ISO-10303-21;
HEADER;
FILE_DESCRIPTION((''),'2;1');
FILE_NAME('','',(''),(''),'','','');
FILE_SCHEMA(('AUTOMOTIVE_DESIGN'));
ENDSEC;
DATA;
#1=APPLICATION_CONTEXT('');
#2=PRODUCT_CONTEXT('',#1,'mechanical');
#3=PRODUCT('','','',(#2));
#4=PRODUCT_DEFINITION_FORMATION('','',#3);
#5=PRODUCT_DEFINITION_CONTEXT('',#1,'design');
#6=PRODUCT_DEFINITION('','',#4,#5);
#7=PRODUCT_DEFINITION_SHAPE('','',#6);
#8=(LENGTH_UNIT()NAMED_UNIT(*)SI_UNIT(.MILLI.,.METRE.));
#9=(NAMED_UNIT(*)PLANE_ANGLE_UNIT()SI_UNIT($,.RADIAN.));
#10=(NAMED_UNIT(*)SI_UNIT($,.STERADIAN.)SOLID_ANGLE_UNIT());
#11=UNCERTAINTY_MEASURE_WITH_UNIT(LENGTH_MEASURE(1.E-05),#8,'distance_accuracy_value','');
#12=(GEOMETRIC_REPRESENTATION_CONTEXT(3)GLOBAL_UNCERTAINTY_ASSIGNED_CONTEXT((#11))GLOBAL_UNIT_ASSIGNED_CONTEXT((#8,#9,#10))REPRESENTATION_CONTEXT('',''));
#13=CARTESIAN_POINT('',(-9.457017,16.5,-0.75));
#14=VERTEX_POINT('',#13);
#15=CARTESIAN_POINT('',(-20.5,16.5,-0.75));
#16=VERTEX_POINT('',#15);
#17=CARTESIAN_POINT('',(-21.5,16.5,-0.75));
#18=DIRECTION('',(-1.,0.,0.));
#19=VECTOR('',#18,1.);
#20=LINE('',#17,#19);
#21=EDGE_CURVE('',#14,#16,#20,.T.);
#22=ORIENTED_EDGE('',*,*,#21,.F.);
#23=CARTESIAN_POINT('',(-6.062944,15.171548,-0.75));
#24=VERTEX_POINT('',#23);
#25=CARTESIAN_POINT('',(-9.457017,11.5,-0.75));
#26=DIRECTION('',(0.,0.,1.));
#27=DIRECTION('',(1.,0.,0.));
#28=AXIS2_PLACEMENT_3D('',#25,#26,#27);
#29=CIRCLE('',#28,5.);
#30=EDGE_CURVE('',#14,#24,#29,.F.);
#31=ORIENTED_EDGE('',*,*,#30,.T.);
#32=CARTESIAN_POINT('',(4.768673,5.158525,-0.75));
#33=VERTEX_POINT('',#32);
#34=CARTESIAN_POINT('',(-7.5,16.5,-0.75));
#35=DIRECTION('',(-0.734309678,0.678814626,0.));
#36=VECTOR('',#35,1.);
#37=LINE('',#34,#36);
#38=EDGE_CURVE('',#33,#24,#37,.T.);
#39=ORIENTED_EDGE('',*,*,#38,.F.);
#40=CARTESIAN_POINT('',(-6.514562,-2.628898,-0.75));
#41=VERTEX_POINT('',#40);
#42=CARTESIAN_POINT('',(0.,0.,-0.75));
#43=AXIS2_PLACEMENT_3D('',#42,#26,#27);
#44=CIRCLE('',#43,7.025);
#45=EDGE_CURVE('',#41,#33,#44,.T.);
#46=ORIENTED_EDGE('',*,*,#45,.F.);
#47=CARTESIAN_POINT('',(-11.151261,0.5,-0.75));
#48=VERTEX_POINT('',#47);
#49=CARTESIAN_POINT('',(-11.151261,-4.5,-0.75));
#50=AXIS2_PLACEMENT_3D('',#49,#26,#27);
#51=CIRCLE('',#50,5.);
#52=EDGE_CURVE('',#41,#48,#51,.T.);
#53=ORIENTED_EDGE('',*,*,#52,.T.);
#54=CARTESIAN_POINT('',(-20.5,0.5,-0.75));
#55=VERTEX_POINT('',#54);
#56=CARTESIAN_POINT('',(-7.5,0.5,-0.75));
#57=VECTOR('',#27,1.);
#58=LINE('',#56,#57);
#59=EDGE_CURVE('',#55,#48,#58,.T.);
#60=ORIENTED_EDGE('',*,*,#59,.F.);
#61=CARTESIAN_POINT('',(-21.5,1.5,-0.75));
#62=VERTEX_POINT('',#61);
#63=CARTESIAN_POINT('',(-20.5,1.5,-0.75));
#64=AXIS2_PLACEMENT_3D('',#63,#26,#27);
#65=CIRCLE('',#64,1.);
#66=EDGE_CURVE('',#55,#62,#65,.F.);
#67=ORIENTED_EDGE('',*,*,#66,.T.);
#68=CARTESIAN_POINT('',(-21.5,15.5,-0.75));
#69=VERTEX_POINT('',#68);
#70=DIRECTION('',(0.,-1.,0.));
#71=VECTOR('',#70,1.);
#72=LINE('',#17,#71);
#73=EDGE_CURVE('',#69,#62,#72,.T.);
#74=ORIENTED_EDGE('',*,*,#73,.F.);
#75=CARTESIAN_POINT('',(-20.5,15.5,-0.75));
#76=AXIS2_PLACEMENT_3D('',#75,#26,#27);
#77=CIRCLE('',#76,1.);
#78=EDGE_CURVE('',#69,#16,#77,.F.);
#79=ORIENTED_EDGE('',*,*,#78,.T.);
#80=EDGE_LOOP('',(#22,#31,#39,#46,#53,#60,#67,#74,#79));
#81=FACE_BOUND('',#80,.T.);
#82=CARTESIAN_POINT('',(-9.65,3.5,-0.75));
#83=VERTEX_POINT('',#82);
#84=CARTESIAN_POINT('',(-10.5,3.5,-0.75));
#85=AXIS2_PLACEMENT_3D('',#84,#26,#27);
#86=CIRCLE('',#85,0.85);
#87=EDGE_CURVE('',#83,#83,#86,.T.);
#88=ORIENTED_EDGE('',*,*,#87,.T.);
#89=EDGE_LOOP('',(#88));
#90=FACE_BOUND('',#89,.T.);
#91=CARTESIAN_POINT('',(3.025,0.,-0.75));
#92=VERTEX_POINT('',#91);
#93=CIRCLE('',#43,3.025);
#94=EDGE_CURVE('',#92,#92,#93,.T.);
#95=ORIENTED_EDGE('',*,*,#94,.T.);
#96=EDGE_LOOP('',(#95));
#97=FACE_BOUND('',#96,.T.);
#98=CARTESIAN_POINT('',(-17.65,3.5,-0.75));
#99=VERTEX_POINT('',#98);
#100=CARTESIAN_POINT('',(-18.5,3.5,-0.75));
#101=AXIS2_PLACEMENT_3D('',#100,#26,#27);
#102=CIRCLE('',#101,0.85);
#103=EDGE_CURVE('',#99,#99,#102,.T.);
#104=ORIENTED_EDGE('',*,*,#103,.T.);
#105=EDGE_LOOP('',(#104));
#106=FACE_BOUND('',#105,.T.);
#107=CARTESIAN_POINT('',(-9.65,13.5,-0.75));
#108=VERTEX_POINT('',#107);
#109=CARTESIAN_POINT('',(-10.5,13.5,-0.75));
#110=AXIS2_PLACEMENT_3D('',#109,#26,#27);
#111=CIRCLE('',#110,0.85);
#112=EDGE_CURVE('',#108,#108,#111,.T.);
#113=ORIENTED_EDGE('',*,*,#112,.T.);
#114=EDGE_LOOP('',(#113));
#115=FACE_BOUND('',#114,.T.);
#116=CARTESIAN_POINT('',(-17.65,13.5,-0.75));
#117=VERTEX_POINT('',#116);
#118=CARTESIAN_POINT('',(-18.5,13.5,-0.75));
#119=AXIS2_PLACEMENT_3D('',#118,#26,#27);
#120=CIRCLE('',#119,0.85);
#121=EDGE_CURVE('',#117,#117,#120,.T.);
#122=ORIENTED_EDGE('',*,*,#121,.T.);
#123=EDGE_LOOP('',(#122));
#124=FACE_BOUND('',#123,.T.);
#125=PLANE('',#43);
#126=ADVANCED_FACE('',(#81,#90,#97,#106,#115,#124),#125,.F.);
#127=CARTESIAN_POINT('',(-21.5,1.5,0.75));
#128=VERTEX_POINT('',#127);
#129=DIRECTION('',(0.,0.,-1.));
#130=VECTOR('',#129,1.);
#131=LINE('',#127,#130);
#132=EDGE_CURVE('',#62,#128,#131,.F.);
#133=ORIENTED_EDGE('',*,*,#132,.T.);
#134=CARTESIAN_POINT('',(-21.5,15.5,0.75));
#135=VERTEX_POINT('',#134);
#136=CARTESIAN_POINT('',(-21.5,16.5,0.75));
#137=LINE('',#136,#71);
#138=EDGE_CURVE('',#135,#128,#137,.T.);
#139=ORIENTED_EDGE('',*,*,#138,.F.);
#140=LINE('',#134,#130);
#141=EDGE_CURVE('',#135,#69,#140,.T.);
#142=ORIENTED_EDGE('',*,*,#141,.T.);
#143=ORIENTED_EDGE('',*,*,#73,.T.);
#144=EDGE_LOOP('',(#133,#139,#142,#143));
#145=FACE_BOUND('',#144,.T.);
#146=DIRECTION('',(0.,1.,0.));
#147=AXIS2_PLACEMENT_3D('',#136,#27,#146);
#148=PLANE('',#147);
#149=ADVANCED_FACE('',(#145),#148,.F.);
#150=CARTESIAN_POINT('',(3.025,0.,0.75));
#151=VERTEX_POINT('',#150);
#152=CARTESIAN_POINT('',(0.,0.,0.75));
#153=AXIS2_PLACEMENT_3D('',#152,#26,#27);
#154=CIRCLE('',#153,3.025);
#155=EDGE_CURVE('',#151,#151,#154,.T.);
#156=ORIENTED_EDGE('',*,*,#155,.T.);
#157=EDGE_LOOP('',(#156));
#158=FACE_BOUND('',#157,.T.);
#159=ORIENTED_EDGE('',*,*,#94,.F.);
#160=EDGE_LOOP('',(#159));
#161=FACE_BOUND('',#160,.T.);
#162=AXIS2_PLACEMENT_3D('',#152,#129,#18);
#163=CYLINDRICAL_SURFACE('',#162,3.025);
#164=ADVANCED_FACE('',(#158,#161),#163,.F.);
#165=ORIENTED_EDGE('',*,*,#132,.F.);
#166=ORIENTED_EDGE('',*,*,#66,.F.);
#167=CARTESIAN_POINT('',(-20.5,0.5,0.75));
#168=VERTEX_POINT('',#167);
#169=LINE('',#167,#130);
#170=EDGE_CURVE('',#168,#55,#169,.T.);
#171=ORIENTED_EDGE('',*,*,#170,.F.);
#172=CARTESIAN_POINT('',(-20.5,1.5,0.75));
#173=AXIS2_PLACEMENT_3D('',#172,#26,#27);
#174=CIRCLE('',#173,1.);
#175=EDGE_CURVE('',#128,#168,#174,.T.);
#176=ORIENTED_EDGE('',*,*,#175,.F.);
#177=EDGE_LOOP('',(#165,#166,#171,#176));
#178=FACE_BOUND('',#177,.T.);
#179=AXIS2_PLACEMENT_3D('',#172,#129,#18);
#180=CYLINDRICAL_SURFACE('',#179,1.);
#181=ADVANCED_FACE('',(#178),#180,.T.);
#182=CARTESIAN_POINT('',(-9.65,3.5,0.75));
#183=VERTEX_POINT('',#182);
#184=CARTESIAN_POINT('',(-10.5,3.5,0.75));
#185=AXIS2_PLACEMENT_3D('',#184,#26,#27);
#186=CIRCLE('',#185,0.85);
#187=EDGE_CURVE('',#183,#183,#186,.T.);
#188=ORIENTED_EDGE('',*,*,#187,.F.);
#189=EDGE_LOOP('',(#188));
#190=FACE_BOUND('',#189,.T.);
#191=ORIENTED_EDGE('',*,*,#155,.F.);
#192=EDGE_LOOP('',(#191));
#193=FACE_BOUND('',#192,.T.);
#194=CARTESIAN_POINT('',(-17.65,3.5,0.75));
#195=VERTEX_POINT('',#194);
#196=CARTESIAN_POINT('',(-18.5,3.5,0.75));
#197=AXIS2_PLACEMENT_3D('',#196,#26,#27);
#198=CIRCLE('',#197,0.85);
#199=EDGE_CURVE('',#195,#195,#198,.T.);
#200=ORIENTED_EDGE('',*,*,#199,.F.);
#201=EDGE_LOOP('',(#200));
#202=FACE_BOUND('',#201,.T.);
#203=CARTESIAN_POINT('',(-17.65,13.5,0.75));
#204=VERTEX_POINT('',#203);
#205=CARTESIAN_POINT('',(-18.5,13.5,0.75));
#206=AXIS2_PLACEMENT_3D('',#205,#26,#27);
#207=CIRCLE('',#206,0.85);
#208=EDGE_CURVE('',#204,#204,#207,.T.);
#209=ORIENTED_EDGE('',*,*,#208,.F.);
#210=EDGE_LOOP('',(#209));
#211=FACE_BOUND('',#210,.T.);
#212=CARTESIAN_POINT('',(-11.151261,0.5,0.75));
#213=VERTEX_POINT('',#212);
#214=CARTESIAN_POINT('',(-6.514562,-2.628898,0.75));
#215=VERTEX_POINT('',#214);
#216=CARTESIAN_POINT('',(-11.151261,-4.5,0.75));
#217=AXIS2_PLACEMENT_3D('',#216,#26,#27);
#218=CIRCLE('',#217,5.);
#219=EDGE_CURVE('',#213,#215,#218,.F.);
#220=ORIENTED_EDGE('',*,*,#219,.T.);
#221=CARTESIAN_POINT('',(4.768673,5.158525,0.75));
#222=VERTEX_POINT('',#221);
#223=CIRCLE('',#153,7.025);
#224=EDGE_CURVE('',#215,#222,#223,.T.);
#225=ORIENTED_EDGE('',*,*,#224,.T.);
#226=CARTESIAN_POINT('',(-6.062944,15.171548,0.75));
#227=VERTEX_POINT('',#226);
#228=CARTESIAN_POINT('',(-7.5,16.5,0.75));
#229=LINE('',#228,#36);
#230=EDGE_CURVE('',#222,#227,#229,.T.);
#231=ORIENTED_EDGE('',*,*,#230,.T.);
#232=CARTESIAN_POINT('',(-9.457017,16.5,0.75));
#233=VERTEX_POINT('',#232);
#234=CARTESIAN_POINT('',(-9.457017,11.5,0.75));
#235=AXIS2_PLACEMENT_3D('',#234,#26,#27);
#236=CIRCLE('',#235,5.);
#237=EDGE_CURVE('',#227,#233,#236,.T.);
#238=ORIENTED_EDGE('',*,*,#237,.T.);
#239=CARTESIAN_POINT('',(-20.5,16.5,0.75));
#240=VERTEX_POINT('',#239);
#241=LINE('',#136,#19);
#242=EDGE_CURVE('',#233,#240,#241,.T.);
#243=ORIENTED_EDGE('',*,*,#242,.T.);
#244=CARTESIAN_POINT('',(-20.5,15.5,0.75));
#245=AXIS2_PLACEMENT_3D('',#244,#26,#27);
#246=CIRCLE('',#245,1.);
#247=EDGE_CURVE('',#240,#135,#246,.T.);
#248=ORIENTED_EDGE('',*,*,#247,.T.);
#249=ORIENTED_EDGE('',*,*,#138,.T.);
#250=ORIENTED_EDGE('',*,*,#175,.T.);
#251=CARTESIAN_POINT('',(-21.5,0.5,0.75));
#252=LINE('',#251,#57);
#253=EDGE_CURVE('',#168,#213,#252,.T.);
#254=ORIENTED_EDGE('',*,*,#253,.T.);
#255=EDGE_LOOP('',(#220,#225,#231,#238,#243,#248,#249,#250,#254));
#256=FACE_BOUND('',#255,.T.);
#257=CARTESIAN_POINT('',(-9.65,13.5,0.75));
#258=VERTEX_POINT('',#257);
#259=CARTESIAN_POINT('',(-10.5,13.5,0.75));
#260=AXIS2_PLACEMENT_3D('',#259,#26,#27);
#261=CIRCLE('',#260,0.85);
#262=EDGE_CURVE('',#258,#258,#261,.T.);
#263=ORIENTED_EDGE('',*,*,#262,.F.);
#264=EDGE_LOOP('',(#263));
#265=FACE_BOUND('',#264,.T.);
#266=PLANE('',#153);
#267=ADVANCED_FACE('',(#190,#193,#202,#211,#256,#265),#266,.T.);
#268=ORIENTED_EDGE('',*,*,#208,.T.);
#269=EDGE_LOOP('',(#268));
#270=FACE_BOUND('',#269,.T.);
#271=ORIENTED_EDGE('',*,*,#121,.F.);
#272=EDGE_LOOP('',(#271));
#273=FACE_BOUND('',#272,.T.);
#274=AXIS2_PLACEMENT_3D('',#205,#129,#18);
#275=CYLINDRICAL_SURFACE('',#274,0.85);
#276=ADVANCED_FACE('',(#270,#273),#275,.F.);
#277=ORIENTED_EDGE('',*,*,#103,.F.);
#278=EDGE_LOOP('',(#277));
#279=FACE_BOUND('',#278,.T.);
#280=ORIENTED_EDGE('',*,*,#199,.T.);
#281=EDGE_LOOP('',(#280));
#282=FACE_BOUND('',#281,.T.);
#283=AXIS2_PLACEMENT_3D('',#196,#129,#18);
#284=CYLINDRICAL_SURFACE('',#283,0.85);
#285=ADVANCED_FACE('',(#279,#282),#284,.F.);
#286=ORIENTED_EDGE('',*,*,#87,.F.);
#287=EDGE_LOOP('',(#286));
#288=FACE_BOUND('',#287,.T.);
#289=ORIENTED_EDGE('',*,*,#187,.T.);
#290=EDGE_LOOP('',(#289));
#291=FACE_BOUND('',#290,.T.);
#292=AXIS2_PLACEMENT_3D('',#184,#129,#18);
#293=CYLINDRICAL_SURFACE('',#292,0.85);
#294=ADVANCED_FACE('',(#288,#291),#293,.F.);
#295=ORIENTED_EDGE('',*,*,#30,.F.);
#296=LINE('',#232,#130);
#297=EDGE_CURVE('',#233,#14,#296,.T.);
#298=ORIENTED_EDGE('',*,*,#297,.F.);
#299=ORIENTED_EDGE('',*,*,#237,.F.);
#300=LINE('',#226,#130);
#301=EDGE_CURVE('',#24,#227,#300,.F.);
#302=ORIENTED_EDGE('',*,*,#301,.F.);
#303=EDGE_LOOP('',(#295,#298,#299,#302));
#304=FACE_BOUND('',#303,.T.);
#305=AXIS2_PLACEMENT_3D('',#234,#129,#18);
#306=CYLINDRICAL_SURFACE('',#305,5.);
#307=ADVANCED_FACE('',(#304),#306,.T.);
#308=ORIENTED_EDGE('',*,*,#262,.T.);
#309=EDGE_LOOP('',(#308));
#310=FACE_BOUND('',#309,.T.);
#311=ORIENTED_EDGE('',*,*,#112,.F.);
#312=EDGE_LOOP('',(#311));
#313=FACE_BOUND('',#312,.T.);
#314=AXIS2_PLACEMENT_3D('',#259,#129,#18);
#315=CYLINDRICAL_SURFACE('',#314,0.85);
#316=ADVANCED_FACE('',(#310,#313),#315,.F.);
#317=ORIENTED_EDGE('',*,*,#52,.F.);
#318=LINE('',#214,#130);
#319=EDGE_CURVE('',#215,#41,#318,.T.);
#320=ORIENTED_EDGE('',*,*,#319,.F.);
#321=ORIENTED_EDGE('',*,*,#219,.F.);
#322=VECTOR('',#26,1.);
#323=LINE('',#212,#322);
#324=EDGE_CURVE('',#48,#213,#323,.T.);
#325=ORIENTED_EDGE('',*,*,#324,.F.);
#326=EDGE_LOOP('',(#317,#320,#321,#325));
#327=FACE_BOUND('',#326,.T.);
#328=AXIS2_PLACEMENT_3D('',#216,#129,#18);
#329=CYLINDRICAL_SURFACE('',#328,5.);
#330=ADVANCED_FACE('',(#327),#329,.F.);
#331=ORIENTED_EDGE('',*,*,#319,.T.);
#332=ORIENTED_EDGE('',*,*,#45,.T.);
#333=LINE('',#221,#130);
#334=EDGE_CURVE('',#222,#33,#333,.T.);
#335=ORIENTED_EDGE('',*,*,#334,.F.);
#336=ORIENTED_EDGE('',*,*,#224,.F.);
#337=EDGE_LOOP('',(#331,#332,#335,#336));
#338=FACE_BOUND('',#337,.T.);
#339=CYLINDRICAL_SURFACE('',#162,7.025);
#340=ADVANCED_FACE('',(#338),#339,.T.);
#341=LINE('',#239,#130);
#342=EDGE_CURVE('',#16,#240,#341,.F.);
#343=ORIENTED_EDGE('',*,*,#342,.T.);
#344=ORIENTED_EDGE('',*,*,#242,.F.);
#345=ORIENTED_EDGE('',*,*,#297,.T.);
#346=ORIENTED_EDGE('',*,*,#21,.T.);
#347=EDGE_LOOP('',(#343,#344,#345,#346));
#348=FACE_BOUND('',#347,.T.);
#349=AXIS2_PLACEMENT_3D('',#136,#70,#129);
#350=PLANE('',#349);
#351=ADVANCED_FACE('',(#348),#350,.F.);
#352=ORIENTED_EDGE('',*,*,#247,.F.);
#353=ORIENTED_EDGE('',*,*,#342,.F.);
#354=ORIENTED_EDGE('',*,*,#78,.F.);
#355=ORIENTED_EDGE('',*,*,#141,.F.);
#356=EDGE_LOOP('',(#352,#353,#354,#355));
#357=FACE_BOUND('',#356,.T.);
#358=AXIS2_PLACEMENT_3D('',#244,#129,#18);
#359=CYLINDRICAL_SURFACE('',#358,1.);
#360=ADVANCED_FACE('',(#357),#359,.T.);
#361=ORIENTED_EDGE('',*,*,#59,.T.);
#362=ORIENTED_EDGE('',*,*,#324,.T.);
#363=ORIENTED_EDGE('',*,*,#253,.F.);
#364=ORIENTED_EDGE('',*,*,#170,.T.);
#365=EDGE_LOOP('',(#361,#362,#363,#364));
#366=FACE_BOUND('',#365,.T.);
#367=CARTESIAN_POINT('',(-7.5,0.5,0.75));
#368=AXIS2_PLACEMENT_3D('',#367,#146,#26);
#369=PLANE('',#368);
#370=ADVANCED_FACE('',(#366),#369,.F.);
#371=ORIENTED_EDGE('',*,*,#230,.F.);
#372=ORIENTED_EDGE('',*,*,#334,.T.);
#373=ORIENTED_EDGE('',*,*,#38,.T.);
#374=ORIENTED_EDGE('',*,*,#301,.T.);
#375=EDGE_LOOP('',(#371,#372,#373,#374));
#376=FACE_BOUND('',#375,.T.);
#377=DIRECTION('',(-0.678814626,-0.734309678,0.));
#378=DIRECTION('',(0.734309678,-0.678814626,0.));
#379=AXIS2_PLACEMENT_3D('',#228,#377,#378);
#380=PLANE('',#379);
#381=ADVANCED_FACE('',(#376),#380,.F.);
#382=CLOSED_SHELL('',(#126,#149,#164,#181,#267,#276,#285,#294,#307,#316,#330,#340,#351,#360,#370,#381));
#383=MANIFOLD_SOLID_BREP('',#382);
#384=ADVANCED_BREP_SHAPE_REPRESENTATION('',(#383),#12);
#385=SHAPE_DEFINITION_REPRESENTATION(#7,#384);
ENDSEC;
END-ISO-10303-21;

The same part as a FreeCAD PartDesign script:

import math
import FreeCAD as App
import Part
import Sketcher

V = App.Vector
Q = App.Units.Quantity


def edges_at(feature, points):
    """Names of the edges that pass closest to the given points."""
    edges = feature.Shape.Edges
    near = lambda p: min(range(len(edges)), key=lambda i: edges[i].distToShape(Part.Vertex(*p))[0])
    return sorted({f"Edge{near(p) + 1}" for p in points})

doc = App.newDocument("Part")
body = doc.addObject("PartDesign::Body", "Body")

# Sketch on XY plane
sketch1 = body.newObject("Sketcher::SketchObject", "Sketch")
sketch1.AttachmentSupport = (doc.getObject("XY_Plane"), [""])
sketch1.MapMode = "FlatFace"
sketch1.addGeometry([
    Part.LineSegment(V(4.8, 5.2, 0), V(-7.5, 16.5, 0)),  # 0
    Part.LineSegment(V(-7.5, 16.5, 0), V(-21.5, 16.5, 0)),  # 1
    Part.LineSegment(V(-21.5, 16.5, 0), V(-21.5, 0.5, 0)),  # 2
    Part.LineSegment(V(-21.5, 0.5, 0), V(-7, 0.5, 0)),  # 3
    Part.ArcOfCircle(Part.Circle(V(0, 0, 0), V(0, 0, 1), 7), math.radians(176), math.radians(407)),  # 4
    Part.Circle(V(0, 0, 0), V(0, 0, 1), 3),  # 5
    Part.Circle(V(-10.5, 3.5, 0), V(0, 0, 1), 0.8),  # 6
    Part.Circle(V(-18.5, 3.5, 0), V(0, 0, 1), 0.8),  # 7
    Part.Circle(V(-10.5, 13.5, 0), V(0, 0, 1), 0.8),  # 8
    Part.Circle(V(-18.5, 13.5, 0), V(0, 0, 1), 0.8),  # 9
], False)
sketch1.addConstraint([
    Sketcher.Constraint("Coincident", 0, 2, 1, 1),
    Sketcher.Constraint("Coincident", 1, 2, 2, 1),
    Sketcher.Constraint("Coincident", 2, 2, 3, 1),
    Sketcher.Constraint("Coincident", 3, 2, 4, 1),
    Sketcher.Constraint("Tangent", 4, 2, 0, 1),
    Sketcher.Constraint("Horizontal", 1),
    Sketcher.Constraint("Vertical", 2),
    Sketcher.Constraint("Horizontal", 3),
    Sketcher.Constraint("Coincident", 4, 3, -1, 1),
    Sketcher.Constraint("Coincident", 5, 3, -1, 1),
    Sketcher.Constraint("Equal", 6, 7),
    Sketcher.Constraint("Equal", 7, 8),
    Sketcher.Constraint("Equal", 8, 9),
    Sketcher.Constraint("Horizontal", 6, 3, 7, 3),
    Sketcher.Constraint("Horizontal", 8, 3, 9, 3),
    Sketcher.Constraint("Vertical", 6, 3, 8, 3),
    Sketcher.Constraint("Vertical", 7, 3, 9, 3),
    Sketcher.Constraint("Diameter", 6, Q("1.7 mm")),
    Sketcher.Constraint("Diameter", 5, Q("6.05 mm")),
    Sketcher.Constraint("DistanceX", 1, 2, 1, 1, Q("14 mm")),
    Sketcher.Constraint("DistanceY", 2, 2, 2, 1, Q("16 mm")),
    Sketcher.Constraint("Radius", 4, Q("7.025 mm")),
    Sketcher.Constraint("DistanceX", 7, 3, 6, 3, Q("8 mm")),
    Sketcher.Constraint("DistanceY", 6, 3, 8, 3, Q("10 mm")),
    Sketcher.Constraint("DistanceX", 8, 3, 0, 2, Q("3 mm")),
    Sketcher.Constraint("DistanceY", 8, 3, 0, 2, Q("3 mm")),
    Sketcher.Constraint("DistanceX", 6, 3, -1, 1, Q("10.5 mm")),
    Sketcher.Constraint("DistanceY", -1, 1, 6, 3, Q("3.5 mm")),
])
pad1 = body.newObject("PartDesign::Pad", "Pad")
pad1.Profile = sketch1
pad1.Length = 1.5
pad1.Midplane = True
doc.recompute()

fillet = body.newObject("PartDesign::Fillet", "Fillet")
fillet.Base = (pad1, edges_at(pad1, [(-7.5, 16.5, 0), (-7.007, 0.5, 0)]))
fillet.Radius = 5
doc.recompute()

fillet2 = body.newObject("PartDesign::Fillet", "Fillet001")
fillet2.Base = (fillet, edges_at(fillet, [(-21.5, 16.5, 0), (-21.5, 0.5, 0)]))
fillet2.Radius = 1

doc.recompute()
